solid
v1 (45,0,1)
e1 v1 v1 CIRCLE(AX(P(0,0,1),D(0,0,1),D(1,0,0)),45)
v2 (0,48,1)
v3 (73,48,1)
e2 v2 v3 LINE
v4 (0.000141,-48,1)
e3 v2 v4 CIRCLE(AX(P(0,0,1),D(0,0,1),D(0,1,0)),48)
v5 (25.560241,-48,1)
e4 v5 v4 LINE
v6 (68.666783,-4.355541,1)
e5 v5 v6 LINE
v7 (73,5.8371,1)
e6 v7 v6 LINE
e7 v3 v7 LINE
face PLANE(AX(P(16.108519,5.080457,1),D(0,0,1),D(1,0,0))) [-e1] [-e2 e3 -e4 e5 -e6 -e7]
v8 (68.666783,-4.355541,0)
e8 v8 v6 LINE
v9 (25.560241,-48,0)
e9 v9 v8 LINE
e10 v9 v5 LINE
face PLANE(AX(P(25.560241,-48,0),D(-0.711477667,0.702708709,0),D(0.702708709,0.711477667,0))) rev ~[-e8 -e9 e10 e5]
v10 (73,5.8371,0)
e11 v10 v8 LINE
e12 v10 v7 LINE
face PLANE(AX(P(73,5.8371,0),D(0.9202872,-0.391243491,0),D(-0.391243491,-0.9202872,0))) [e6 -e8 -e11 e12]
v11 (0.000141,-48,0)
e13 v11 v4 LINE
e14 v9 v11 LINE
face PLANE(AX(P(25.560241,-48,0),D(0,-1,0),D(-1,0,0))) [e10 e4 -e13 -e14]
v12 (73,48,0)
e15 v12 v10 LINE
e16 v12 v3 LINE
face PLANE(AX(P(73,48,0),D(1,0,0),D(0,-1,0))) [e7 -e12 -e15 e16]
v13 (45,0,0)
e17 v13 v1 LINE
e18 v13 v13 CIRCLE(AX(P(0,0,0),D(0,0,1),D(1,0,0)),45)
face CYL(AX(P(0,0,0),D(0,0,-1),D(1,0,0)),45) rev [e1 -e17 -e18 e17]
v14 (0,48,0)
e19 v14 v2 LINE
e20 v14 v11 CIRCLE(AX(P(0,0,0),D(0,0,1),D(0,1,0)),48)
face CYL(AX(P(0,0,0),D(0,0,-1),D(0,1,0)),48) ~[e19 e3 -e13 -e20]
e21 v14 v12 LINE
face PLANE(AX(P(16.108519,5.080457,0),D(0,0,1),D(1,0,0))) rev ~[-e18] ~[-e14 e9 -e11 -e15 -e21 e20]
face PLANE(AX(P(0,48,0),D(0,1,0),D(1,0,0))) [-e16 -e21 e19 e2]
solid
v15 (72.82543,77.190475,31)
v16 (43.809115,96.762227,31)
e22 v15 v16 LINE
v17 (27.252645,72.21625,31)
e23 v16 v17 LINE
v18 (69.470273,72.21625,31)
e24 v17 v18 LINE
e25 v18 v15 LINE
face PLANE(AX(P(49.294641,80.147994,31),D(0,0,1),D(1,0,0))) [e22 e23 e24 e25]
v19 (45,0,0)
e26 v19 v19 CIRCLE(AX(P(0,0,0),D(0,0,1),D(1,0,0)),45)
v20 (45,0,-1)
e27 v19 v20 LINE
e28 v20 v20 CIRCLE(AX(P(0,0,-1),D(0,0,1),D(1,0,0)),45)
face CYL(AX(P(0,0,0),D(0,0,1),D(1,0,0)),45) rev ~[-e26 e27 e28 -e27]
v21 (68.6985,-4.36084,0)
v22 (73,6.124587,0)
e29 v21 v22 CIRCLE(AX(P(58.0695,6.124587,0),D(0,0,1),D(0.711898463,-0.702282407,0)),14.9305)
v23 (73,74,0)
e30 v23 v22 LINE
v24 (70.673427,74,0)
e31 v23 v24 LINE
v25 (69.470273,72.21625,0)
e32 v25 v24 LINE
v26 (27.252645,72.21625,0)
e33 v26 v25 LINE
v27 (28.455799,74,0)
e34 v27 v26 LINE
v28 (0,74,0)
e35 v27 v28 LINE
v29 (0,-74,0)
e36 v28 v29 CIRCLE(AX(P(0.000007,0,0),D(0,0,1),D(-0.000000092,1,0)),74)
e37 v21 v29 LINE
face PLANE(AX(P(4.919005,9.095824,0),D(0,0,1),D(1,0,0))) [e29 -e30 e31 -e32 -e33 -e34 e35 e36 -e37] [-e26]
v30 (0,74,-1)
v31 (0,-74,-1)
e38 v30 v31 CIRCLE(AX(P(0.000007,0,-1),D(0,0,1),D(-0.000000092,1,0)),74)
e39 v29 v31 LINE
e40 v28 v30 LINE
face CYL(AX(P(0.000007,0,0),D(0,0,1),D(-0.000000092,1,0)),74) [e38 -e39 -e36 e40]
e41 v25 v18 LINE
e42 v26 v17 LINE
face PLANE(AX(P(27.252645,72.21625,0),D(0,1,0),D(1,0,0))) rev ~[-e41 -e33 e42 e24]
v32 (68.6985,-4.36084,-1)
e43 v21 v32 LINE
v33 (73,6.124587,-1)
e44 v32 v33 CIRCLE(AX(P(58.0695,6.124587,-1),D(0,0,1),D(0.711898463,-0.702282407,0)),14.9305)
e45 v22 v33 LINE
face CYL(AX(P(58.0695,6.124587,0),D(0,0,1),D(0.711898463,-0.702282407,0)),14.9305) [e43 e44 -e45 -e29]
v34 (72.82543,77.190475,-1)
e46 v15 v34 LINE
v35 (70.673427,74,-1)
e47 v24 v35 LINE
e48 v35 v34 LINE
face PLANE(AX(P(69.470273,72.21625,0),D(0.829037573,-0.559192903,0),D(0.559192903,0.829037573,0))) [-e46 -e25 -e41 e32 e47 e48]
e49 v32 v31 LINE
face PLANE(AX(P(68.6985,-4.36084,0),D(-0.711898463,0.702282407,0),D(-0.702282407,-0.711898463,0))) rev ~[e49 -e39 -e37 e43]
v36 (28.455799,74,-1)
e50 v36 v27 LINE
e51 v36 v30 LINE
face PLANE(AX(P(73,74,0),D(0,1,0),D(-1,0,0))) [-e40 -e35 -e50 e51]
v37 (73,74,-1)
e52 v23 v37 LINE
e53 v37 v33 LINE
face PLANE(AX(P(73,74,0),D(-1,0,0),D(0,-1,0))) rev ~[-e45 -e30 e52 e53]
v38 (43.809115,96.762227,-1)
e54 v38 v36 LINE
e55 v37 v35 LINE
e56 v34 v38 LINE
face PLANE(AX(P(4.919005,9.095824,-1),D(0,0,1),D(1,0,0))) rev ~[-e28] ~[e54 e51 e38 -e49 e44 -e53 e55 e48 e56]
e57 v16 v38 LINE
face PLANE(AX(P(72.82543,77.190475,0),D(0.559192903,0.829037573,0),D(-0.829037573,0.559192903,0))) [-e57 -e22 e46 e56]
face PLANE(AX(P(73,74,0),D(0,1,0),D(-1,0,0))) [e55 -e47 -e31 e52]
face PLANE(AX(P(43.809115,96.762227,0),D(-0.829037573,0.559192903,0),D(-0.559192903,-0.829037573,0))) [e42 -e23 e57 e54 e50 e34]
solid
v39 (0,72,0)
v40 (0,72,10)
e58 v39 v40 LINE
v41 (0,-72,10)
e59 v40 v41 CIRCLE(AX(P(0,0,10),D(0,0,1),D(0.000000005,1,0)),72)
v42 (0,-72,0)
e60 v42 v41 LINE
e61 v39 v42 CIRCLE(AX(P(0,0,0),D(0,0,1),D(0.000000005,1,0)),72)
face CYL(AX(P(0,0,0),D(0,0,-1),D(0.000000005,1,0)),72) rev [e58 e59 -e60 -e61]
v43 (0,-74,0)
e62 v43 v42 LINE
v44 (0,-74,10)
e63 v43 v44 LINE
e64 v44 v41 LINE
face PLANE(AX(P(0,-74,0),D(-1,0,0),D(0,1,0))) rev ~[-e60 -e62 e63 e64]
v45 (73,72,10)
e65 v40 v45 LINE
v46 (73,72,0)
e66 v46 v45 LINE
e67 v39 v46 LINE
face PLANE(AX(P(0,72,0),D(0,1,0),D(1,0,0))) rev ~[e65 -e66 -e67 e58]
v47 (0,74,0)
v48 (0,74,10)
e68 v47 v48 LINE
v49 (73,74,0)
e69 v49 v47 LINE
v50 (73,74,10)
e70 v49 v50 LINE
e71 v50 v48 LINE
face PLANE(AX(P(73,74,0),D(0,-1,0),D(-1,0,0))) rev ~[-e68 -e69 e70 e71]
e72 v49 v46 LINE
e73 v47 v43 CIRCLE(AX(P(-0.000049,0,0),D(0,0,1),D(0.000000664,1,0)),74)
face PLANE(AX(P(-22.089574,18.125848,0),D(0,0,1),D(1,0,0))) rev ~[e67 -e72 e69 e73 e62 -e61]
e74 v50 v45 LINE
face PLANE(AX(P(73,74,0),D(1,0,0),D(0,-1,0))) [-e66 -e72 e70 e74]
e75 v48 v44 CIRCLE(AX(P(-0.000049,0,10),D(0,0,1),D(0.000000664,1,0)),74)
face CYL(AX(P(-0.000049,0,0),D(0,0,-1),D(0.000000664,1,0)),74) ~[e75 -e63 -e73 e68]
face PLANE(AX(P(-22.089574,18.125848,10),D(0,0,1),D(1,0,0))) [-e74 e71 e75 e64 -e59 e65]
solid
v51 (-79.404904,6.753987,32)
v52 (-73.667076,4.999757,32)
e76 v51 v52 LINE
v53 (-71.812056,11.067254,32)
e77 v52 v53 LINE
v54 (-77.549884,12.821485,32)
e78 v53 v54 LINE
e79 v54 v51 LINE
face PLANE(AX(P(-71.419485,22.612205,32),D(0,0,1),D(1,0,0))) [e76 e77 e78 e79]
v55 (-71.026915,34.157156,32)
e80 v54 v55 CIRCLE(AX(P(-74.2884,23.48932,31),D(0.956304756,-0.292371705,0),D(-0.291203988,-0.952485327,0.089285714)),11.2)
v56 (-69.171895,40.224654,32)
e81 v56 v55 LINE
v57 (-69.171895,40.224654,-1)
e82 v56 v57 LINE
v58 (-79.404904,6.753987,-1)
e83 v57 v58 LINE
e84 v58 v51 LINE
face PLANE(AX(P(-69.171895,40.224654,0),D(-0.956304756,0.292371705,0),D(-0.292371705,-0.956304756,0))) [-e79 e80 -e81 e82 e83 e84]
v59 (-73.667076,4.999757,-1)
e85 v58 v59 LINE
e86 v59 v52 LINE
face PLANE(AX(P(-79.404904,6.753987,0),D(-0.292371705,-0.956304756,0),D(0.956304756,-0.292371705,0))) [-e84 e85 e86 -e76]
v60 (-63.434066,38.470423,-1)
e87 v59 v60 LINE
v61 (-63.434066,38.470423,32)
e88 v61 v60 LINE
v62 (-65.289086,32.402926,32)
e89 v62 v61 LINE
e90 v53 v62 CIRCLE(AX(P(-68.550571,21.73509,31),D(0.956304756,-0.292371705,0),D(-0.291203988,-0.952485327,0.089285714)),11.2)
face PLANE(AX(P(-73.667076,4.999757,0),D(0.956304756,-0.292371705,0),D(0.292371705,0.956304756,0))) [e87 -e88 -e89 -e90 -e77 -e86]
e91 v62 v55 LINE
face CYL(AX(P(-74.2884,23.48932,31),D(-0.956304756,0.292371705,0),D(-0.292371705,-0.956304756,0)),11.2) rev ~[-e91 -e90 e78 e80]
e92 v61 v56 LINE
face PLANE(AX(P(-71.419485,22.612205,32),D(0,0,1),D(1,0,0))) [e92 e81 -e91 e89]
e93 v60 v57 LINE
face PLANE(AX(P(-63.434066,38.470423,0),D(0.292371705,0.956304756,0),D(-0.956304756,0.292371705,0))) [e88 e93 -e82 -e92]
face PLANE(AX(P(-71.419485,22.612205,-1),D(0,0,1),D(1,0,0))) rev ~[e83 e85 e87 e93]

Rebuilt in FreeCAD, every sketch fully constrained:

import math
import FreeCAD as App
import Part
import Sketcher

V = App.Vector
Q = App.Units.Quantity


def add_polygon(sketch, points):
    """Adds a closed chain of lines whose ends are joined by coincident constraints."""
    first, n = sketch.GeometryCount, len(points)
    for a, b in zip(points, points[1:] + points[:1]):
        sketch.addGeometry(Part.LineSegment(App.Vector(*a, 0), App.Vector(*b, 0)), False)
    for i in range(n):
        sketch.addConstraint(Sketcher.Constraint("Coincident", first + i, 2, first + (i + 1) % n, 1))

doc = App.newDocument("Part")
body = doc.addObject("PartDesign::Body", "Body")

# Sketch on XY plane
sketch1 = body.newObject("Sketcher::SketchObject", "Sketch")
sketch1.AttachmentSupport = (doc.getObject("XY_Plane"), [""])
sketch1.MapMode = "FlatFace"
sketch1.addGeometry([
    Part.LineSegment(V(73, 74, 0), V(0, 74, 0)),  # 0
    Part.ArcOfCircle(Part.Circle(V(-0.000049, 0, 0), V(0, 0, 1), 74), math.radians(89.999962), math.radians(270.000038)),  # 1
    Part.LineSegment(V(0, -74, 0), V(0, -72, 0)),  # 2
    Part.ArcOfCircle(Part.Circle(V(0, 0, 0), V(0, 0, 1), 72), math.radians(90), math.radians(270)),  # 3
    Part.LineSegment(V(0, 72, 0), V(73, 72, 0)),  # 4
    Part.LineSegment(V(73, 72, 0), V(73, 74, 0)),  # 5
], False)
sketch1.addConstraint([
    Sketcher.Constraint("Coincident", 0, 2, 1, 1),
    Sketcher.Constraint("Coincident", 1, 2, 2, 1),
    Sketcher.Constraint("Coincident", 2, 2, 3, 2),
    Sketcher.Constraint("Coincident", 3, 1, 4, 1),
    Sketcher.Constraint("Coincident", 4, 2, 5, 1),
    Sketcher.Constraint("Coincident", 5, 2, 0, 1),
    Sketcher.Constraint("Horizontal", 0),
    Sketcher.Constraint("Vertical", 2),
    Sketcher.Constraint("Horizontal", 4),
    Sketcher.Constraint("Vertical", 5),
    Sketcher.Constraint("Coincident", 3, 3, -1, 1),
    Sketcher.Constraint("PointOnObject", 1, 3, -1),
    Sketcher.Constraint("PointOnObject", 0, 2, -2),
    Sketcher.Constraint("PointOnObject", 1, 2, -2),
    Sketcher.Constraint("PointOnObject", 3, 1, -2),
    Sketcher.Constraint("Radius", 1, 74.0),
    Sketcher.Constraint("Radius", 3, 72.0),
    Sketcher.Constraint("DistanceX", 0, 2, 0, 1, 73.0),
    Sketcher.Constraint("DistanceX", 1, 3, 4, 2, 73.000049),
])
pad1 = body.newObject("PartDesign::Pad", "Pad")
pad1.Profile = sketch1
pad1.Length = 10
body2 = doc.addObject("PartDesign::Body", "Body001")

# Sketch on XY plane
sketch2 = body2.newObject("Sketcher::SketchObject", "Sketch001")
sketch2.AttachmentSupport = (doc.getObject("XY_Plane001"), [""])
sketch2.MapMode = "FlatFace"
sketch2.addGeometry([
    Part.ArcOfCircle(Part.Circle(V(0, 0, 0), V(0, 0, 1), 48), math.radians(90), math.radians(270.000169)),  # 0
    Part.LineSegment(V(0.000141, -48, 0), V(25.560241, -48, 0)),  # 1
    Part.LineSegment(V(25.560241, -48, 0), V(68.666783, -4.355541, 0)),  # 2
    Part.LineSegment(V(68.666783, -4.355541, 0), V(73, 5.8371, 0)),  # 3
    Part.LineSegment(V(73, 5.8371, 0), V(73, 48, 0)),  # 4
    Part.LineSegment(V(73, 48, 0), V(0, 48, 0)),  # 5
    Part.Circle(V(0, 0, 0), V(0, 0, 1), 45),  # 6
], False)
sketch2.addConstraint([
    Sketcher.Constraint("Coincident", 0, 2, 1, 1),
    Sketcher.Constraint("Coincident", 1, 2, 2, 1),
    Sketcher.Constraint("Coincident", 2, 2, 3, 1),
    Sketcher.Constraint("Coincident", 3, 2, 4, 1),
    Sketcher.Constraint("Coincident", 4, 2, 5, 1),
    Sketcher.Constraint("Tangent", 5, 2, 0, 1),
    Sketcher.Constraint("Horizontal", 1),
    Sketcher.Constraint("Vertical", 4),
    Sketcher.Constraint("Horizontal", 5),
    Sketcher.Constraint("Coincident", 0, 3, -1, 1),
    Sketcher.Constraint("Coincident", 6, 3, -1, 1),
    Sketcher.Constraint("Diameter", 6, 90.0),
    Sketcher.Constraint("Radius", 0, 48.0),
    Sketcher.Constraint("DistanceX", 5, 2, 5, 1, 73.0),
    Sketcher.Constraint("DistanceX", 1, 1, 1, 2, 25.5601),
    Sketcher.Constraint("DistanceY", 4, 1, 4, 2, 42.1629),
    Sketcher.Constraint("Distance", 2, 61.3434),
    Sketcher.Constraint("Distance", 3, 11.0755),
    Sketcher.Constraint("DistanceX", -1, 1, 0, 2, 0.000141),
])
pad2 = body2.newObject("PartDesign::Pad", "Pad001")
pad2.Profile = sketch2
pad2.Length = 1
body3 = doc.addObject("PartDesign::Body", "Body002")

# Sketch on XY plane
sketch3 = body3.newObject("Sketcher::SketchObject", "Sketch002")
sketch3.AttachmentSupport = (doc.getObject("XY_Plane002"), [""])
sketch3.MapMode = "FlatFace"
add_polygon(sketch3, [(-69.171895, 40.224654), (-79.404904, 6.753987), (-73.667076, 4.999757), (-63.434066, 38.470423)])  # lines 0-3
sketch3.addConstraint([
    Sketcher.Constraint("Perpendicular", 0, 1),
    Sketcher.Constraint("Perpendicular", 1, 2),
    Sketcher.Constraint("Perpendicular", 2, 3),
    Sketcher.Constraint("Angle", 0, Q("-107 deg")),
    Sketcher.Constraint("Distance", 0, 35.0),
    Sketcher.Constraint("Distance", 1, 6.0),
    Sketcher.Constraint("DistanceX", 0, 2, -1, 1, 79.404904),
    Sketcher.Constraint("DistanceY", -1, 1, 0, 2, 6.753987),
])
pad3 = body3.newObject("PartDesign::Pad", "Pad002")
pad3.Profile = sketch3
pad3.Type = "TwoLengths"
pad3.Length = 32
pad3.Length2 = 1

# Sketch on an angled plane
sketch4 = body3.newObject("Sketcher::SketchObject", "Sketch003")
sketch4.Placement = App.Placement(V(-74.505668, 22.778669, 0), App.Rotation(V(-0.292371705, -0.956304756, 0), V(0, 0, 1), V(-0.956304756, 0.292371705, 0), "ZXY"))
sketch4.addGeometry(Part.Circle(V(-0.743123, 31, 0), V(0, 0, 1), 11.2), False)
sketch4.addConstraint([
    Sketcher.Constraint("Diameter", 0, 22.4),
    Sketcher.Constraint("DistanceY", -1, 1, 0, 3, 31.0),
    Sketcher.Constraint("DistanceX", 0, 3, -1, 1, 0.743123),
])
pocket1 = body3.newObject("PartDesign::Pocket", "Pocket")
pocket1.Profile = sketch4
pocket1.Type = "ThroughAll"
body4 = doc.addObject("PartDesign::Body", "Body003")

# Sketch on XY plane
sketch5 = body4.newObject("Sketcher::SketchObject", "Sketch004")
sketch5.AttachmentSupport = (doc.getObject("XY_Plane003"), [""])
sketch5.MapMode = "FlatFace"
sketch5.addGeometry([
    Part.LineSegment(V(73, 74, 0), V(0, 74, 0)),  # 0
    Part.ArcOfCircle(Part.Circle(V(0.000007, 0, 0), V(0, 0, 1), 74), math.radians(90.000005), math.radians(269.999995)),  # 1
    Part.LineSegment(V(0, -74, 0), V(68.6985, -4.36084, 0)),  # 2
    Part.ArcOfCircle(Part.Circle(V(58.0695, 6.124587, 0), V(0, 0, 1), 14.9305), math.radians(-44.61041), math.radians(0)),  # 3
    Part.LineSegment(V(73, 6.124587, 0), V(73, 74, 0)),  # 4
    Part.Circle(V(0, 0, 0), V(0, 0, 1), 45),  # 5
], False)
sketch5.addConstraint([
    Sketcher.Constraint("Tangent", 0, 2, 1, 1),
    Sketcher.Constraint("Coincident", 1, 2, 2, 1),
    Sketcher.Constraint("Tangent", 2, 2, 3, 1),
    Sketcher.Constraint("Tangent", 3, 2, 4, 1),
    Sketcher.Constraint("Coincident", 4, 2, 0, 1),
    Sketcher.Constraint("Horizontal", 0),
    Sketcher.Constraint("Vertical", 4),
    Sketcher.Constraint("Coincident", 1, 3, -1, 1),
    Sketcher.Constraint("Coincident", 5, 3, -1, 1),
    Sketcher.Constraint("PointOnObject", 1, 2, -2),
    Sketcher.Constraint("Diameter", 5, 90.0),
    Sketcher.Constraint("Radius", 1, 74.0),
    Sketcher.Constraint("DistanceX", 0, 2, 0, 1, 73.0),
    Sketcher.Constraint("Radius", 3, 14.9305),
    Sketcher.Constraint("DistanceX", 3, 3, 2, 2, 10.629),
])
pad4 = body4.newObject("PartDesign::Pad", "Pad003")
pad4.Profile = sketch5
pad4.Length = 1
pad4.Reversed = True

# Sketch on XY plane
sketch6 = body4.newObject("Sketcher::SketchObject", "Sketch005")
sketch6.AttachmentSupport = (doc.getObject("XY_Plane003"), [""])
sketch6.MapMode = "FlatFace"
add_polygon(sketch6, [(27.252645, 72.21625), (69.470273, 72.21625), (72.82543, 77.190475), (43.809115, 96.762227)])  # lines 0-3
sketch6.addConstraint([
    Sketcher.Constraint("Horizontal", 0),
    Sketcher.Constraint("Perpendicular", 1, 2),
    Sketcher.Constraint("Perpendicular", 2, 3),
    Sketcher.Constraint("Angle", 1, Q("56 deg")),
    Sketcher.Constraint("Distance", 1, 6.0),
    Sketcher.Constraint("Distance", 2, 35.0),
    Sketcher.Constraint("DistanceY", -1, 1, 0, 2, 72.21625),
    Sketcher.Constraint("DistanceX", -1, 1, 1, 2, 72.82543),
])
pad5 = body4.newObject("PartDesign::Pad", "Pad004")
pad5.Profile = sketch6
pad5.Type = "TwoLengths"
pad5.Length = 31
pad5.Length2 = 1

doc.recompute()
